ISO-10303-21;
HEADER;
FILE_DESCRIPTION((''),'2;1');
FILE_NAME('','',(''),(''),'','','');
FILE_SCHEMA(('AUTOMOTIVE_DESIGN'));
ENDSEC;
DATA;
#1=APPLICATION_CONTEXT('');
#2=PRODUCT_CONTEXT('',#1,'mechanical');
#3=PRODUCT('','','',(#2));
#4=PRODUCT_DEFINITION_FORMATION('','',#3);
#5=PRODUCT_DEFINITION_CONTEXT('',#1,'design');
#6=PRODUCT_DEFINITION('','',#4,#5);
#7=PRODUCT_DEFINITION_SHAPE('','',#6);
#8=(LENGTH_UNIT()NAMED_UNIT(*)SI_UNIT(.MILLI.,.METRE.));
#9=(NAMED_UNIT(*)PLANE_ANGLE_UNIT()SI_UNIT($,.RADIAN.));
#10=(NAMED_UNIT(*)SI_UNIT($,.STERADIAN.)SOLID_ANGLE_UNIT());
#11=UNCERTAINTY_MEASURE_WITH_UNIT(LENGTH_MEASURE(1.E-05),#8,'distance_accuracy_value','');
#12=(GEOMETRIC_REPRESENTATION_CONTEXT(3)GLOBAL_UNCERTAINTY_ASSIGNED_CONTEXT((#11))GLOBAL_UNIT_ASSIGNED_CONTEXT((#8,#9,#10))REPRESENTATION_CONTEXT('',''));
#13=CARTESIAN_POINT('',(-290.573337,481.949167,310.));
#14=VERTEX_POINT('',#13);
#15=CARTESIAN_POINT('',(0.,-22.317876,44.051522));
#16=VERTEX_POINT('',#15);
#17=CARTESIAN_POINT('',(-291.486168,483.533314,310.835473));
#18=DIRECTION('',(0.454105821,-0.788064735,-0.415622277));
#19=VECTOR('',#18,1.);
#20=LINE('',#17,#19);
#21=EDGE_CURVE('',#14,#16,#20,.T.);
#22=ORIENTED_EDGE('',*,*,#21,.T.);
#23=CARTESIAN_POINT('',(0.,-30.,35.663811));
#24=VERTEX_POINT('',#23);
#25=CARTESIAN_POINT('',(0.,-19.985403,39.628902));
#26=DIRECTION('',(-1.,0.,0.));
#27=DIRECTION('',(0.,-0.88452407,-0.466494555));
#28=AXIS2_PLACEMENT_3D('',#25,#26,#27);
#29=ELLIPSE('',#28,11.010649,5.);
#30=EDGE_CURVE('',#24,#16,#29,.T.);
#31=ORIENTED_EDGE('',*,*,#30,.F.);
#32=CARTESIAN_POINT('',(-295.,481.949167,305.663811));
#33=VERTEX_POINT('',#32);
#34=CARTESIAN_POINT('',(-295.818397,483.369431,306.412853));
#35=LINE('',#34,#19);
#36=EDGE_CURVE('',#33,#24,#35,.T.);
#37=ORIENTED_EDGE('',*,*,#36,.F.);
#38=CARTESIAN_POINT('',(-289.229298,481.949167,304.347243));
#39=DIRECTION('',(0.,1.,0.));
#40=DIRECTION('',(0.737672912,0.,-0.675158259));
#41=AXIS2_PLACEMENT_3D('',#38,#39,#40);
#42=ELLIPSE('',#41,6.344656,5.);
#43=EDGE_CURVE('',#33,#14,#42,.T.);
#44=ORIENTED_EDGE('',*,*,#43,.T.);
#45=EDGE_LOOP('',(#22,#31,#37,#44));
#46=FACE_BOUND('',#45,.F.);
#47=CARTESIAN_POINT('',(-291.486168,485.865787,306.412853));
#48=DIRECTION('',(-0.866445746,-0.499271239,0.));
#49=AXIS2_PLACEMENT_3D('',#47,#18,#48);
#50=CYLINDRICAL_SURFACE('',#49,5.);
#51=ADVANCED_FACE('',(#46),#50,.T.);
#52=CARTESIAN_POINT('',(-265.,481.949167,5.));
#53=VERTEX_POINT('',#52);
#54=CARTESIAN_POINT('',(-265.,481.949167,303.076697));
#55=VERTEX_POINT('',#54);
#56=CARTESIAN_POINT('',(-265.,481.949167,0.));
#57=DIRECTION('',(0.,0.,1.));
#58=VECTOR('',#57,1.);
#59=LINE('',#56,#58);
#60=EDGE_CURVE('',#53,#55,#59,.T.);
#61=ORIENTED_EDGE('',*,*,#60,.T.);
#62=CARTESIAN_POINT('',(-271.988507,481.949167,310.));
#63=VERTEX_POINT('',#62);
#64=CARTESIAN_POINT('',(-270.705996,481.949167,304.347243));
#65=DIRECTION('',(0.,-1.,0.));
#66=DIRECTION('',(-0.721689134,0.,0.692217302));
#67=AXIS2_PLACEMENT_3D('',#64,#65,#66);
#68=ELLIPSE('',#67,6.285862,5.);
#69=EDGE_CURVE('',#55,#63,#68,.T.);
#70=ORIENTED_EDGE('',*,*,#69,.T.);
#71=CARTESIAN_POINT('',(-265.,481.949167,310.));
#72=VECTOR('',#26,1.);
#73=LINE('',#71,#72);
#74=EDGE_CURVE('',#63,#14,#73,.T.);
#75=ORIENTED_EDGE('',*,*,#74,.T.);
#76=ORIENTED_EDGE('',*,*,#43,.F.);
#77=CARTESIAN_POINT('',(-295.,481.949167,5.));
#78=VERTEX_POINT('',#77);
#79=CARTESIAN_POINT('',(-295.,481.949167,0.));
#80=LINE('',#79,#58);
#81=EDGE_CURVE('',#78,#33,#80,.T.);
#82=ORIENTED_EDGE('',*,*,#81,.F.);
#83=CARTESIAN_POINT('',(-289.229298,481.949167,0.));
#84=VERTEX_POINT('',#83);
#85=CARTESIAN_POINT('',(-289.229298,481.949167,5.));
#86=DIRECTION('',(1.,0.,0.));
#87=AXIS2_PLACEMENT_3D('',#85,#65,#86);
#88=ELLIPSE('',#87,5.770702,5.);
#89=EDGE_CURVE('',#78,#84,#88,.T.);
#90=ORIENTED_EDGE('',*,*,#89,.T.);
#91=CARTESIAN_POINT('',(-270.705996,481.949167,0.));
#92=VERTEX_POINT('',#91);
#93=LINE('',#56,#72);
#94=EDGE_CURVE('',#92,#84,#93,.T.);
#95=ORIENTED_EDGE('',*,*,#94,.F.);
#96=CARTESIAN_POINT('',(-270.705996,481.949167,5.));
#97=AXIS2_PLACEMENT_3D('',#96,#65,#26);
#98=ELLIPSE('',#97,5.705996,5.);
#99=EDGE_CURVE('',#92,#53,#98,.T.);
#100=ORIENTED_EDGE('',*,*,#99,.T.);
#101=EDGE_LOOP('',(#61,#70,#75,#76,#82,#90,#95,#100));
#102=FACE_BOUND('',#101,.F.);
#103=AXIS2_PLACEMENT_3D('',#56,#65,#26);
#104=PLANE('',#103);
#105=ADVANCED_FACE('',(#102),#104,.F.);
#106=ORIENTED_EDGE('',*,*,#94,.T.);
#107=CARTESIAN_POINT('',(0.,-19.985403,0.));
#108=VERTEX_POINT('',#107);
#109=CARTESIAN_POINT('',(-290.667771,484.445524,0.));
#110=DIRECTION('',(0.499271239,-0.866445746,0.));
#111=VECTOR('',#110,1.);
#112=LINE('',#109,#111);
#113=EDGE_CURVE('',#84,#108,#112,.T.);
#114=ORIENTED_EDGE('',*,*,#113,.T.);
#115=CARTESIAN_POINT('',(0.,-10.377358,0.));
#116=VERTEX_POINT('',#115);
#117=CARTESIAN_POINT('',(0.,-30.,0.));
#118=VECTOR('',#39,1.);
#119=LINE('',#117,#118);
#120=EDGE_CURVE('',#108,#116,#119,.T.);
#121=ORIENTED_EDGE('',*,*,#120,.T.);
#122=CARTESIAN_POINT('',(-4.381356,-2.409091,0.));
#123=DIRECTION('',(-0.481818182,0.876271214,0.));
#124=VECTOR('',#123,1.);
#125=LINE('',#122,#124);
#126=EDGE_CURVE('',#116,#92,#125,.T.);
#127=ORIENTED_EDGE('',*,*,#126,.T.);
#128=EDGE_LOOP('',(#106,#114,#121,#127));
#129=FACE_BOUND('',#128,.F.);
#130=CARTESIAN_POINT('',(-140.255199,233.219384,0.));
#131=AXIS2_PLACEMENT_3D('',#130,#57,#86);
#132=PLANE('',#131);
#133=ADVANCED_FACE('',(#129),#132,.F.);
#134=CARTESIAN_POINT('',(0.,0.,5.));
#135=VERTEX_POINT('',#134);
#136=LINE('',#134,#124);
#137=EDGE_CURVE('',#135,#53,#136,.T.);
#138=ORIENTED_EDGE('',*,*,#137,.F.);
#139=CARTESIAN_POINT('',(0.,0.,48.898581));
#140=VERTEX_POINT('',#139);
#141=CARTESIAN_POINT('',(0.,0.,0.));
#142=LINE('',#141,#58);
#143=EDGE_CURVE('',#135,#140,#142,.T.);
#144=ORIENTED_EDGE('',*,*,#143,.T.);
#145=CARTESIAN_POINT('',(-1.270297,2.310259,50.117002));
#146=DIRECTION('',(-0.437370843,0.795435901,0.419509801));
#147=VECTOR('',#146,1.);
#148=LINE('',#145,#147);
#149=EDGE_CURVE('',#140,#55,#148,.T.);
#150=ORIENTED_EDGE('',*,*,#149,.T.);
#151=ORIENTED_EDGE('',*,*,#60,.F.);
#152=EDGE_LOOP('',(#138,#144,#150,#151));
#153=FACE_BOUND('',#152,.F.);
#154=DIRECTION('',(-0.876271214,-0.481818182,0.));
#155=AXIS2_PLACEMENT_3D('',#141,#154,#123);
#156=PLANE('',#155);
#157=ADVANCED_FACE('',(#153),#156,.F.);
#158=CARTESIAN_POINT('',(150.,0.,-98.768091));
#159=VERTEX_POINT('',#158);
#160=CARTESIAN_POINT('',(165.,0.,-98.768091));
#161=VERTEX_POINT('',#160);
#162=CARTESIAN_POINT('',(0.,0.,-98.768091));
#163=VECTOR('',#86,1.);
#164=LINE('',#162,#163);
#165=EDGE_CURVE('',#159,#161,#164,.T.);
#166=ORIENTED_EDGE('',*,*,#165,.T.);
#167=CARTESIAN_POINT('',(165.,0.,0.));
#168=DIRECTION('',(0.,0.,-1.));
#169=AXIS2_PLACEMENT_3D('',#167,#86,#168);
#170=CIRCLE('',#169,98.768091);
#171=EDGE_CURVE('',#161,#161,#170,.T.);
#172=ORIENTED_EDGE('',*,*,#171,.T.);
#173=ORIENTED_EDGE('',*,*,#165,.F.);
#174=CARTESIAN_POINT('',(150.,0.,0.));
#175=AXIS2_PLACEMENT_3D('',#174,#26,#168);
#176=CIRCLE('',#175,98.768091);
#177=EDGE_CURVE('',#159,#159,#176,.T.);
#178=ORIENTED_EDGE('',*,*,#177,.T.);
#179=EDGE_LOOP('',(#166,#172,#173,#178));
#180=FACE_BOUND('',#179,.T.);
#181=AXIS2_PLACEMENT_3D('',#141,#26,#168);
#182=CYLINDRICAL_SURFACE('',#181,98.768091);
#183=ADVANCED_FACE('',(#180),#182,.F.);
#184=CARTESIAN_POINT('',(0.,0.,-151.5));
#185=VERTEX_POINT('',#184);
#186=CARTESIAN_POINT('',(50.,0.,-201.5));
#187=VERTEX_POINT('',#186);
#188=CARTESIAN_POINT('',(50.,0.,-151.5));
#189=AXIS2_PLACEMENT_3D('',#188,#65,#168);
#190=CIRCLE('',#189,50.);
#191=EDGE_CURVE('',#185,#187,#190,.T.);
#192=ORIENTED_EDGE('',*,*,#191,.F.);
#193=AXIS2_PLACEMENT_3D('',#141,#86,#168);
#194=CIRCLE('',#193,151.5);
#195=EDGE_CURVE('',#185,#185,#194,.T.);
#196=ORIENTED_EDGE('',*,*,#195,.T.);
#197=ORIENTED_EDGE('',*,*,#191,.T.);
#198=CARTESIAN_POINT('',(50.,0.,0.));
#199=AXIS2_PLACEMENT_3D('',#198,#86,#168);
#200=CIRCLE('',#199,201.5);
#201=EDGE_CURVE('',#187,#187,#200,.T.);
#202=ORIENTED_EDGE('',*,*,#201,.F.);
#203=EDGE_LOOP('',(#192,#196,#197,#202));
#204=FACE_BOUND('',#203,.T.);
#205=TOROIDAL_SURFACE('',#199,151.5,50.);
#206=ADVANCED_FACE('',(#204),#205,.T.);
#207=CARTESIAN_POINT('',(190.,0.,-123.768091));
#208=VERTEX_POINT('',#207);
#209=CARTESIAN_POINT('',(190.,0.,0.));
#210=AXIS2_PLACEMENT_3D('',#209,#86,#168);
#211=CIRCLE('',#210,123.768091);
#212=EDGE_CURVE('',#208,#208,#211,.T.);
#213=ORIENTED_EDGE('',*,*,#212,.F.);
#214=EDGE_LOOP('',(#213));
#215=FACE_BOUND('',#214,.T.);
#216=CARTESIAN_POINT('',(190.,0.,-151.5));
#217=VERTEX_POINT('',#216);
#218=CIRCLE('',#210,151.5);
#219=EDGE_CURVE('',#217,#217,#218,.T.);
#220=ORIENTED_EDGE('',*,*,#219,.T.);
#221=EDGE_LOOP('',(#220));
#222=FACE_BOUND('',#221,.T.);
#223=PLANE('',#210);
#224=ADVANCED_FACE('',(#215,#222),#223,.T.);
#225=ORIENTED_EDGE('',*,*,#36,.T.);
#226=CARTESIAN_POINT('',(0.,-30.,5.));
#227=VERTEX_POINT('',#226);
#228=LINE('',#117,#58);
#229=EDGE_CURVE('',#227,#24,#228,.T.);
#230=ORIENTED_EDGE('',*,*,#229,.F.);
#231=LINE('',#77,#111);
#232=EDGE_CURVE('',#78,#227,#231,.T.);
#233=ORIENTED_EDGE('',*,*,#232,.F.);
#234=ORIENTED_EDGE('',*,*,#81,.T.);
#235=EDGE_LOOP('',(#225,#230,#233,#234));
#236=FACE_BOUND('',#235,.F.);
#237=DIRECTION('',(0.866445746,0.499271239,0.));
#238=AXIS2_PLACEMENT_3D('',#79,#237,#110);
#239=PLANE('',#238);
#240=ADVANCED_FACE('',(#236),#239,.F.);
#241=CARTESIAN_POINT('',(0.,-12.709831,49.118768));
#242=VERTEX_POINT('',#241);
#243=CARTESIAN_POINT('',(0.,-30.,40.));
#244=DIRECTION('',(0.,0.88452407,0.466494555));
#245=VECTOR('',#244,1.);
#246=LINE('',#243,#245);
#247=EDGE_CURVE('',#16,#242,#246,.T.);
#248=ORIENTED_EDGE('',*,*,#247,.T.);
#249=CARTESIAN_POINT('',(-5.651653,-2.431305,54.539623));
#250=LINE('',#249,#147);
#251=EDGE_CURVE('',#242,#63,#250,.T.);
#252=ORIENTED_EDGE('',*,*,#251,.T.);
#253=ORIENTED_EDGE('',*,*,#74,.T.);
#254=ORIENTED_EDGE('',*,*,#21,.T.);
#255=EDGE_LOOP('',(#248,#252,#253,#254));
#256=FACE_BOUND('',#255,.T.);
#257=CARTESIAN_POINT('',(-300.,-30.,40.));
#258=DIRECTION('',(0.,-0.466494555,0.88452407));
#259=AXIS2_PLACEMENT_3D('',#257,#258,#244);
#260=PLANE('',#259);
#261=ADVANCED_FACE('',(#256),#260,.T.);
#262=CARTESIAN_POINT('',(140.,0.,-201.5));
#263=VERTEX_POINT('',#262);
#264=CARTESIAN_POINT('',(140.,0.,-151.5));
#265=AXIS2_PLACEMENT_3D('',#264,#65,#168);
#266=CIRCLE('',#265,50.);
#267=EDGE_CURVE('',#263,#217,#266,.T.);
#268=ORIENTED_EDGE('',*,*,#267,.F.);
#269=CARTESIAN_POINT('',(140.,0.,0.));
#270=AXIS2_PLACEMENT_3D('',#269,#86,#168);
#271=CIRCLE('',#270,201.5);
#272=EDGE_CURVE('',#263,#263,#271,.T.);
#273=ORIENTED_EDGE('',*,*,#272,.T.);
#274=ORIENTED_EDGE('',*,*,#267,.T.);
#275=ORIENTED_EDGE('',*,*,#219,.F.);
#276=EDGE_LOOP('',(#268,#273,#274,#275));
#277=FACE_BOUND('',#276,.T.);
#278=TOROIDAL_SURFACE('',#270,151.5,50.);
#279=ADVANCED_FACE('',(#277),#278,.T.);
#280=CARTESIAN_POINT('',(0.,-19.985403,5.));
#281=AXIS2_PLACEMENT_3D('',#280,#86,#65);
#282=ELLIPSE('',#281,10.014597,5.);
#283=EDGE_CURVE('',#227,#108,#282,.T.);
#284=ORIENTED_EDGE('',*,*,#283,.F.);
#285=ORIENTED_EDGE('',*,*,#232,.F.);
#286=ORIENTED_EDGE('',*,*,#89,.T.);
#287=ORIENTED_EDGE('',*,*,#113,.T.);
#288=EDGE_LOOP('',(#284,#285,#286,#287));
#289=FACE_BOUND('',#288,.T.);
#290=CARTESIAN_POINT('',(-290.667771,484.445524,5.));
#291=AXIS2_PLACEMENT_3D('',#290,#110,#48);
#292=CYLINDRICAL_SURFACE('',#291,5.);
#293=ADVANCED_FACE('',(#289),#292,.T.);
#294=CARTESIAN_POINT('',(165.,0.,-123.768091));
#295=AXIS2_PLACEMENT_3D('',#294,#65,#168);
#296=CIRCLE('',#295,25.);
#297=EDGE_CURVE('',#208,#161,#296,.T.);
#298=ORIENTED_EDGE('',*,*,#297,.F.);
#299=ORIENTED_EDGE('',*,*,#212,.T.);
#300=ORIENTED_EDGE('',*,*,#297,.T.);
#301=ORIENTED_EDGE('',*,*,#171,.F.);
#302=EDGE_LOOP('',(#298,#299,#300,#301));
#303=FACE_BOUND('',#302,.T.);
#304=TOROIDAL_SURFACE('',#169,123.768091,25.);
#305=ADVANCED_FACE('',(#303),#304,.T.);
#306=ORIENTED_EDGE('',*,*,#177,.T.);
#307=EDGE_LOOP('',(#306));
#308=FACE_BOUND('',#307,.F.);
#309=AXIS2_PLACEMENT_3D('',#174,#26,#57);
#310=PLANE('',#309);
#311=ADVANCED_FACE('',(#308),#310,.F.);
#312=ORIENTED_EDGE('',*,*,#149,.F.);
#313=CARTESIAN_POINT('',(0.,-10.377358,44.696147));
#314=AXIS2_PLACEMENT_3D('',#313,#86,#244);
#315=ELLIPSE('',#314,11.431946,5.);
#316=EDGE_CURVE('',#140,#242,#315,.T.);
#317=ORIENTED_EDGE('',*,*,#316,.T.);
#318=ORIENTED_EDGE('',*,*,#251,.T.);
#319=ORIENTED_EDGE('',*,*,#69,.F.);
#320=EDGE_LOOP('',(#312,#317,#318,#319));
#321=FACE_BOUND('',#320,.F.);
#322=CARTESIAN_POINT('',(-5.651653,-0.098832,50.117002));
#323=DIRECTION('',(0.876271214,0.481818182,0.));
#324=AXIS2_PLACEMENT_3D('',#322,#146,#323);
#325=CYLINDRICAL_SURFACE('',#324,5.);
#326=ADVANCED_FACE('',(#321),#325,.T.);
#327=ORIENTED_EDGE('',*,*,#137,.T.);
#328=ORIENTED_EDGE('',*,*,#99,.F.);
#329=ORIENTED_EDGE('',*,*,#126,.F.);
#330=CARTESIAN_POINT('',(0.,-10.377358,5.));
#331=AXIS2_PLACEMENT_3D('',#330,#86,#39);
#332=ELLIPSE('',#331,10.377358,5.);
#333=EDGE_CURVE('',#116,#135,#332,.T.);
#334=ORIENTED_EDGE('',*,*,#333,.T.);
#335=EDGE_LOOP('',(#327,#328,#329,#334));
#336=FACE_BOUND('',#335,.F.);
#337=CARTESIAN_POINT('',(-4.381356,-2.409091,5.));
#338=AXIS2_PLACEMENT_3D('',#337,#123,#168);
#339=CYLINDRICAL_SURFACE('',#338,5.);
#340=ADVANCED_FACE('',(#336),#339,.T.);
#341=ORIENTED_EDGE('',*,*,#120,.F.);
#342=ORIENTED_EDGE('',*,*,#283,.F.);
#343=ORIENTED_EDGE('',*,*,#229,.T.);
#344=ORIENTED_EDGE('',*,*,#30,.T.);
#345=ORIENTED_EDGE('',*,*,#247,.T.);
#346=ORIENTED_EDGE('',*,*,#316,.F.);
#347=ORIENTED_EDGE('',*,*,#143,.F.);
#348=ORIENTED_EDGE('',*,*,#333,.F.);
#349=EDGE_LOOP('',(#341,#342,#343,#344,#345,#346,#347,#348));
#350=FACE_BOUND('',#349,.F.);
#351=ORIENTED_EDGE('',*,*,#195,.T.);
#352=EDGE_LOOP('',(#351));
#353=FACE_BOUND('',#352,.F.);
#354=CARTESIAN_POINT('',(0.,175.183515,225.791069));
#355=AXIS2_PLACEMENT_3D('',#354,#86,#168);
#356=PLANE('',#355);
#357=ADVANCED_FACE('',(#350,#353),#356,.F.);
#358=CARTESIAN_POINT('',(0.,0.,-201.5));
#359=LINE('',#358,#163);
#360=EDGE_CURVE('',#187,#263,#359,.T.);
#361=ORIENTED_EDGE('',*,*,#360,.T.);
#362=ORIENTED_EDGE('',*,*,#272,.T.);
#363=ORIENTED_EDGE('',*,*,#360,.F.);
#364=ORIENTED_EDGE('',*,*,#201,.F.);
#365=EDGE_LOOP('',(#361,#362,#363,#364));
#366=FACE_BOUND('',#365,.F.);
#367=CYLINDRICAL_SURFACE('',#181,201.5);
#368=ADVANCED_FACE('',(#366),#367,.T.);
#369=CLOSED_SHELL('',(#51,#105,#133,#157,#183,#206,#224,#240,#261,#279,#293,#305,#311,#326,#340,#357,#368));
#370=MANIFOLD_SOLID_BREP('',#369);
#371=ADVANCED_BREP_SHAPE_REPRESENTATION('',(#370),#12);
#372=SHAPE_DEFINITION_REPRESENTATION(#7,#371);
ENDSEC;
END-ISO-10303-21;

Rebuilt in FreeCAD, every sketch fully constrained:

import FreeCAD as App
import Part
import Sketcher
Q = App.Units.Quantity


def edges_at(feature, points):
    """Names of the edges that pass closest to the given points."""
    edges = feature.Shape.Edges
    near = lambda p: min(range(len(edges)), key=lambda i: edges[i].distToShape(Part.Vertex(*p))[0])
    return sorted({f"Edge{near(p) + 1}" for p in points})


def add_polygon(sketch, points):
    """Adds a closed chain of lines whose ends are joined by coincident constraints."""
    first, n = sketch.GeometryCount, len(points)
    for a, b in zip(points, points[1:] + points[:1]):
        sketch.addGeometry(Part.LineSegment(App.Vector(*a, 0), App.Vector(*b, 0)), False)
    for i in range(n):
        sketch.addConstraint(Sketcher.Constraint("Coincident", first + i, 2, first + (i + 1) % n, 1))

doc = App.newDocument("Part")
body = doc.addObject("PartDesign::Body", "Body")

# Sketch on YZ plane
sketch1 = body.newObject("Sketcher::SketchObject", "Sketch")
sketch1.AttachmentSupport = (doc.getObject("YZ_Plane"), [""])
sketch1.MapMode = "FlatFace"
sketch1.addGeometry(Part.Circle(App.Vector(0, 0, 0), App.Vector(0, 0, 1), 202), False)
sketch1.addGeometry(Part.Circle(App.Vector(0, 0, 0), App.Vector(0, 0, 1), 99), False)
sketch1.addConstraint(Sketcher.Constraint("Coincident", 0, 3, -1, 1))
sketch1.addConstraint(Sketcher.Constraint("Coincident", 1, 3, -1, 1))
sketch1.addConstraint(Sketcher.Constraint("Diameter", 0, Q("403 mm")))
sketch1.addConstraint(Sketcher.Constraint("Diameter", 1, Q("197.536183 mm")))
pad1 = body.newObject("PartDesign::Pad", "Pad")
pad1.Profile = sketch1
pad1.Length = 190

# Sketch on YZ plane
sketch2 = body.newObject("Sketcher::SketchObject", "Sketch001")
sketch2.AttachmentSupport = (doc.getObject("YZ_Plane"), [""])
sketch2.MapMode = "FlatFace"
sketch2.addGeometry(Part.Circle(App.Vector(0, 0, 0), App.Vector(0, 0, 1), 99), False)
sketch2.addConstraint(Sketcher.Constraint("Coincident", 0, 3, -1, 1))
sketch2.addConstraint(Sketcher.Constraint("Diameter", 0, Q("197.536183 mm")))
pad2 = body.newObject("PartDesign::Pad", "Pad001")
pad2.Profile = sketch2
pad2.Length = 150
doc.recompute()

fillet = body.newObject("PartDesign::Fillet", "Fillet")
fillet.Base = (pad2, edges_at(pad2, [(0, 0, 201.5), (190, 0, 201.5)]))
fillet.Radius = 50
doc.recompute()

fillet2 = body.newObject("PartDesign::Fillet", "Fillet001")
fillet2.Base = (fillet, edges_at(fillet, [(190, 0, 98.768)]))
fillet2.Radius = 25

# Sketch on XY plane
sketch3 = body.newObject("Sketcher::SketchObject", "Sketch002")
sketch3.AttachmentSupport = (doc.getObject("XY_Plane"), [""])
sketch3.MapMode = "FlatFace"
add_polygon(sketch3, [(0, -30), (0, 0), (-265, 482), (-295, 482)])  # lines 0-3
sketch3.addConstraint(Sketcher.Constraint("Vertical", 0))
sketch3.addConstraint(Sketcher.Constraint("Horizontal", 2))
sketch3.addConstraint(Sketcher.Constraint("Coincident", 0, 2, -1, 1))
sketch3.addConstraint(Sketcher.Constraint("Equal", 2, 0))
sketch3.addConstraint(Sketcher.Constraint("DistanceX", 2, 2, 2, 1, Q("30 mm")))
sketch3.addConstraint(Sketcher.Constraint("Distance", 1, Q("550 mm")))
sketch3.addConstraint(Sketcher.Constraint("DistanceX", 1, 2, -1, 1, Q("265 mm")))
pad3 = body.newObject("PartDesign::Pad", "Pad002")
pad3.Profile = sketch3
pad3.Length = 310

# Sketch on YZ plane
sketch4 = body.newObject("Sketcher::SketchObject", "Sketch003")
sketch4.AttachmentSupport = (doc.getObject("YZ_Plane"), [""])
sketch4.MapMode = "FlatFace"
sketch4.AttachmentOffset = App.Placement(App.Vector(0, 0, -300), App.Rotation())
add_polygon(sketch4, [(482, 310), (-30, 40), (-30, 310)])  # lines 0-2
sketch4.addConstraint(Sketcher.Constraint("Vertical", 1))
sketch4.addConstraint(Sketcher.Constraint("Horizontal", 2))
sketch4.addConstraint(Sketcher.Constraint("DistanceY", 1, 1, 1, 2, Q("270 mm")))
sketch4.addConstraint(Sketcher.Constraint("DistanceX", 0, 2, -1, 1, Q("30 mm")))
sketch4.addConstraint(Sketcher.Constraint("DistanceY", -1, 1, 0, 2, Q("40 mm")))
sketch4.addConstraint(Sketcher.Constraint("Distance", 0, Q("578.784891 mm")))
pocket1 = body.newObject("PartDesign::Pocket", "Pocket")
pocket1.Profile = sketch4
pocket1.Length = 300
pocket1.Reversed = True
doc.recompute()

fillet3 = body.newObject("PartDesign::Fillet", "Fillet002")
fillet3.Base = (pocket1, edges_at(pocket1, [
    (-132.5, 240.975, 0),
    (-147.5, 225.975, 0),
    (-132.5, 240.975, 182.911),
    (-147.5, 225.975, 175),
]))
fillet3.Radius = 5

doc.recompute()
